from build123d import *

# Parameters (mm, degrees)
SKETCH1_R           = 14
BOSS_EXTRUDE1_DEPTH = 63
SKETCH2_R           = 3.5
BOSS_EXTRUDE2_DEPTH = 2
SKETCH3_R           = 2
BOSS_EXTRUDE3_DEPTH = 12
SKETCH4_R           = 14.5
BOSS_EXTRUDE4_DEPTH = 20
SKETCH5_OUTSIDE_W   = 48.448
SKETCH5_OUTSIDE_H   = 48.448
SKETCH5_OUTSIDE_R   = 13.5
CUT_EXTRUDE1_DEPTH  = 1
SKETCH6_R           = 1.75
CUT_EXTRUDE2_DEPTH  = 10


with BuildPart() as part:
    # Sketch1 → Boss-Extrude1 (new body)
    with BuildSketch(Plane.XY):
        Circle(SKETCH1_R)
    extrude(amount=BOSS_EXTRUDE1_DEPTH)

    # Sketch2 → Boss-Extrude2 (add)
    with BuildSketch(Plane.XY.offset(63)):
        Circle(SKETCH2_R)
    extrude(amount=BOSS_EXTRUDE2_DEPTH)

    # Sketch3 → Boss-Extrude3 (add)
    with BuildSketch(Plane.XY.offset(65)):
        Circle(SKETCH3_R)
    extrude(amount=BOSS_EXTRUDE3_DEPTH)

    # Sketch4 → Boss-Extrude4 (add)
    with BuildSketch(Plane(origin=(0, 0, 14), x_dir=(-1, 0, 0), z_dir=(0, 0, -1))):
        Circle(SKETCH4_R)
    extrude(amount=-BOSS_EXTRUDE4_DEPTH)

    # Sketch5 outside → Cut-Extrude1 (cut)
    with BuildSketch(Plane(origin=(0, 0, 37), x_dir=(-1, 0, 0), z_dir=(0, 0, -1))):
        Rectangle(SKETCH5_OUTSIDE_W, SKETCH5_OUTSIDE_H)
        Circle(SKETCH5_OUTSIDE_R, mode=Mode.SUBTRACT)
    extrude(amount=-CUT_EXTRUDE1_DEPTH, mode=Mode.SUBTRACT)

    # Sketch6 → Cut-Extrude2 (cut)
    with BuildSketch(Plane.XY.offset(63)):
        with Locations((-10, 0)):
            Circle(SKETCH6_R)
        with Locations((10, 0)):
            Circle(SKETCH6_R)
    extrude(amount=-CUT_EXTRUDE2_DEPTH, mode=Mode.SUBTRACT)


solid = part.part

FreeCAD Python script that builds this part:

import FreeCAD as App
import Part
import Sketcher

V = App.Vector

doc = App.newDocument("Part")
body = doc.addObject("PartDesign::Body", "Body")

# Sketch on XY plane
sketch1 = body.newObject("Sketcher::SketchObject", "Sketch")
sketch1.AttachmentSupport = (doc.getObject("XY_Plane"), [""])
sketch1.MapMode = "FlatFace"
sketch1.addGeometry(Part.Circle(V(0, 0, 0), V(0, 0, 1), 14), False)
sketch1.addConstraint([
    Sketcher.Constraint("Coincident", 0, 3, -1, 1),
    Sketcher.Constraint("Diameter", 0, 28.0),
])
pad1 = body.newObject("PartDesign::Pad", "Pad")
pad1.Profile = sketch1
pad1.Length = 63

# Sketch on XY plane
sketch2 = body.newObject("Sketcher::SketchObject", "Sketch001")
sketch2.AttachmentSupport = (doc.getObject("XY_Plane"), [""])
sketch2.MapMode = "FlatFace"
sketch2.AttachmentOffset = App.Placement(V(0, 0, 63), App.Rotation())
sketch2.addGeometry(Part.Circle(V(0, 0, 0), V(0, 0, 1), 3.5), False)
sketch2.addConstraint([
    Sketcher.Constraint("Coincident", 0, 3, -1, 1),
    Sketcher.Constraint("Diameter", 0, 7.0),
])
pad2 = body.newObject("PartDesign::Pad", "Pad001")
pad2.Profile = sketch2
pad2.Length = 2

# Sketch on XY plane
sketch3 = body.newObject("Sketcher::SketchObject", "Sketch002")
sketch3.AttachmentSupport = (doc.getObject("XY_Plane"), [""])
sketch3.MapMode = "FlatFace"
sketch3.AttachmentOffset = App.Placement(V(0, 0, 65), App.Rotation())
sketch3.addGeometry(Part.Circle(V(0, 0, 0), V(0, 0, 1), 2), False)
sketch3.addConstraint([
    Sketcher.Constraint("Coincident", 0, 3, -1, 1),
    Sketcher.Constraint("Diameter", 0, 4.0),
])
pad3 = body.newObject("PartDesign::Pad", "Pad002")
pad3.Profile = sketch3
pad3.Length = 12

# Sketch on XY plane
sketch4 = body.newObject("Sketcher::SketchObject", "Sketch003")
sketch4.AttachmentSupport = (doc.getObject("XY_Plane"), [""])
sketch4.MapMode = "FlatFace"
sketch4.AttachmentOffset = App.Placement(V(0, 0, 14), App.Rotation())
sketch4.addGeometry(Part.Circle(V(0, 0, 0), V(0, 0, 1), 14), False)
sketch4.addConstraint([
    Sketcher.Constraint("Coincident", 0, 3, -1, 1),
    Sketcher.Constraint("Diameter", 0, 29.0),
])
pad4 = body.newObject("PartDesign::Pad", "Pad003")
pad4.Profile = sketch4
pad4.Length = 20

# Sketch on XY plane
sketch5 = body.newObject("Sketcher::SketchObject", "Sketch004")
sketch5.AttachmentSupport = (doc.getObject("XY_Plane"), [""])
sketch5.MapMode = "FlatFace"
sketch5.AttachmentOffset = App.Placement(V(0, 0, 37), App.Rotation())
sketch5.addGeometry([
    Part.LineSegment(V(24, 24, 0), V(24, -24, 0)),  # 0
    Part.LineSegment(V(24, -24, 0), V(-24, -24, 0)),  # 1
    Part.LineSegment(V(-24, -24, 0), V(-24, 24, 0)),  # 2
    Part.LineSegment(V(-24, 24, 0), V(24, 24, 0)),  # 3
    Part.Circle(V(0, 0, 0), V(0, 0, 1), 14),  # 4
], False)
sketch5.addConstraint([
    Sketcher.Constraint("Coincident", 0, 2, 1, 1),
    Sketcher.Constraint("Coincident", 1, 2, 2, 1),
    Sketcher.Constraint("Coincident", 2, 2, 3, 1),
    Sketcher.Constraint("Coincident", 3, 2, 0, 1),
    Sketcher.Constraint("Vertical", 0),
    Sketcher.Constraint("Horizontal", 1),
    Sketcher.Constraint("Vertical", 2),
    Sketcher.Constraint("Horizontal", 3),
    Sketcher.Constraint("Coincident", 4, 3, -1, 1),
    Sketcher.Constraint("Symmetric", 0, 2, 2, 2, -1, 1),
    Sketcher.Constraint("Equal", 3, 0),
    Sketcher.Constraint("Diameter", 4, 27.0),
    Sketcher.Constraint("DistanceX", 1, 2, 1, 1, 48.448),
])
pocket1 = body.newObject("PartDesign::Pocket", "Pocket")
pocket1.Profile = sketch5
pocket1.Length = 1
pocket1.Reversed = True

# Sketch on XY plane
sketch6 = body.newObject("Sketcher::SketchObject", "Sketch005")
sketch6.AttachmentSupport = (doc.getObject("XY_Plane"), [""])
sketch6.MapMode = "FlatFace"
sketch6.AttachmentOffset = App.Placement(V(0, 0, 63), App.Rotation())
sketch6.addGeometry([
    Part.Circle(V(-10, 0, 0), V(0, 0, 1), 1.8),
    Part.Circle(V(10, 0, 0), V(0, 0, 1), 1.8),
], False)
sketch6.addConstraint([
    Sketcher.Constraint("Equal", 0, 1),
    Sketcher.Constraint("Symmetric", 0, 3, 1, 3, -1, 1),
    Sketcher.Constraint("PointOnObject", 0, 3, -1),
    Sketcher.Constraint("Diameter", 0, 3.5),
    Sketcher.Constraint("DistanceX", 0, 3, -1, 1, 10.0),
])
pocket2 = body.newObject("PartDesign::Pocket", "Pocket001")
pocket2.Profile = sketch6
pocket2.Length = 10

doc.recompute()
